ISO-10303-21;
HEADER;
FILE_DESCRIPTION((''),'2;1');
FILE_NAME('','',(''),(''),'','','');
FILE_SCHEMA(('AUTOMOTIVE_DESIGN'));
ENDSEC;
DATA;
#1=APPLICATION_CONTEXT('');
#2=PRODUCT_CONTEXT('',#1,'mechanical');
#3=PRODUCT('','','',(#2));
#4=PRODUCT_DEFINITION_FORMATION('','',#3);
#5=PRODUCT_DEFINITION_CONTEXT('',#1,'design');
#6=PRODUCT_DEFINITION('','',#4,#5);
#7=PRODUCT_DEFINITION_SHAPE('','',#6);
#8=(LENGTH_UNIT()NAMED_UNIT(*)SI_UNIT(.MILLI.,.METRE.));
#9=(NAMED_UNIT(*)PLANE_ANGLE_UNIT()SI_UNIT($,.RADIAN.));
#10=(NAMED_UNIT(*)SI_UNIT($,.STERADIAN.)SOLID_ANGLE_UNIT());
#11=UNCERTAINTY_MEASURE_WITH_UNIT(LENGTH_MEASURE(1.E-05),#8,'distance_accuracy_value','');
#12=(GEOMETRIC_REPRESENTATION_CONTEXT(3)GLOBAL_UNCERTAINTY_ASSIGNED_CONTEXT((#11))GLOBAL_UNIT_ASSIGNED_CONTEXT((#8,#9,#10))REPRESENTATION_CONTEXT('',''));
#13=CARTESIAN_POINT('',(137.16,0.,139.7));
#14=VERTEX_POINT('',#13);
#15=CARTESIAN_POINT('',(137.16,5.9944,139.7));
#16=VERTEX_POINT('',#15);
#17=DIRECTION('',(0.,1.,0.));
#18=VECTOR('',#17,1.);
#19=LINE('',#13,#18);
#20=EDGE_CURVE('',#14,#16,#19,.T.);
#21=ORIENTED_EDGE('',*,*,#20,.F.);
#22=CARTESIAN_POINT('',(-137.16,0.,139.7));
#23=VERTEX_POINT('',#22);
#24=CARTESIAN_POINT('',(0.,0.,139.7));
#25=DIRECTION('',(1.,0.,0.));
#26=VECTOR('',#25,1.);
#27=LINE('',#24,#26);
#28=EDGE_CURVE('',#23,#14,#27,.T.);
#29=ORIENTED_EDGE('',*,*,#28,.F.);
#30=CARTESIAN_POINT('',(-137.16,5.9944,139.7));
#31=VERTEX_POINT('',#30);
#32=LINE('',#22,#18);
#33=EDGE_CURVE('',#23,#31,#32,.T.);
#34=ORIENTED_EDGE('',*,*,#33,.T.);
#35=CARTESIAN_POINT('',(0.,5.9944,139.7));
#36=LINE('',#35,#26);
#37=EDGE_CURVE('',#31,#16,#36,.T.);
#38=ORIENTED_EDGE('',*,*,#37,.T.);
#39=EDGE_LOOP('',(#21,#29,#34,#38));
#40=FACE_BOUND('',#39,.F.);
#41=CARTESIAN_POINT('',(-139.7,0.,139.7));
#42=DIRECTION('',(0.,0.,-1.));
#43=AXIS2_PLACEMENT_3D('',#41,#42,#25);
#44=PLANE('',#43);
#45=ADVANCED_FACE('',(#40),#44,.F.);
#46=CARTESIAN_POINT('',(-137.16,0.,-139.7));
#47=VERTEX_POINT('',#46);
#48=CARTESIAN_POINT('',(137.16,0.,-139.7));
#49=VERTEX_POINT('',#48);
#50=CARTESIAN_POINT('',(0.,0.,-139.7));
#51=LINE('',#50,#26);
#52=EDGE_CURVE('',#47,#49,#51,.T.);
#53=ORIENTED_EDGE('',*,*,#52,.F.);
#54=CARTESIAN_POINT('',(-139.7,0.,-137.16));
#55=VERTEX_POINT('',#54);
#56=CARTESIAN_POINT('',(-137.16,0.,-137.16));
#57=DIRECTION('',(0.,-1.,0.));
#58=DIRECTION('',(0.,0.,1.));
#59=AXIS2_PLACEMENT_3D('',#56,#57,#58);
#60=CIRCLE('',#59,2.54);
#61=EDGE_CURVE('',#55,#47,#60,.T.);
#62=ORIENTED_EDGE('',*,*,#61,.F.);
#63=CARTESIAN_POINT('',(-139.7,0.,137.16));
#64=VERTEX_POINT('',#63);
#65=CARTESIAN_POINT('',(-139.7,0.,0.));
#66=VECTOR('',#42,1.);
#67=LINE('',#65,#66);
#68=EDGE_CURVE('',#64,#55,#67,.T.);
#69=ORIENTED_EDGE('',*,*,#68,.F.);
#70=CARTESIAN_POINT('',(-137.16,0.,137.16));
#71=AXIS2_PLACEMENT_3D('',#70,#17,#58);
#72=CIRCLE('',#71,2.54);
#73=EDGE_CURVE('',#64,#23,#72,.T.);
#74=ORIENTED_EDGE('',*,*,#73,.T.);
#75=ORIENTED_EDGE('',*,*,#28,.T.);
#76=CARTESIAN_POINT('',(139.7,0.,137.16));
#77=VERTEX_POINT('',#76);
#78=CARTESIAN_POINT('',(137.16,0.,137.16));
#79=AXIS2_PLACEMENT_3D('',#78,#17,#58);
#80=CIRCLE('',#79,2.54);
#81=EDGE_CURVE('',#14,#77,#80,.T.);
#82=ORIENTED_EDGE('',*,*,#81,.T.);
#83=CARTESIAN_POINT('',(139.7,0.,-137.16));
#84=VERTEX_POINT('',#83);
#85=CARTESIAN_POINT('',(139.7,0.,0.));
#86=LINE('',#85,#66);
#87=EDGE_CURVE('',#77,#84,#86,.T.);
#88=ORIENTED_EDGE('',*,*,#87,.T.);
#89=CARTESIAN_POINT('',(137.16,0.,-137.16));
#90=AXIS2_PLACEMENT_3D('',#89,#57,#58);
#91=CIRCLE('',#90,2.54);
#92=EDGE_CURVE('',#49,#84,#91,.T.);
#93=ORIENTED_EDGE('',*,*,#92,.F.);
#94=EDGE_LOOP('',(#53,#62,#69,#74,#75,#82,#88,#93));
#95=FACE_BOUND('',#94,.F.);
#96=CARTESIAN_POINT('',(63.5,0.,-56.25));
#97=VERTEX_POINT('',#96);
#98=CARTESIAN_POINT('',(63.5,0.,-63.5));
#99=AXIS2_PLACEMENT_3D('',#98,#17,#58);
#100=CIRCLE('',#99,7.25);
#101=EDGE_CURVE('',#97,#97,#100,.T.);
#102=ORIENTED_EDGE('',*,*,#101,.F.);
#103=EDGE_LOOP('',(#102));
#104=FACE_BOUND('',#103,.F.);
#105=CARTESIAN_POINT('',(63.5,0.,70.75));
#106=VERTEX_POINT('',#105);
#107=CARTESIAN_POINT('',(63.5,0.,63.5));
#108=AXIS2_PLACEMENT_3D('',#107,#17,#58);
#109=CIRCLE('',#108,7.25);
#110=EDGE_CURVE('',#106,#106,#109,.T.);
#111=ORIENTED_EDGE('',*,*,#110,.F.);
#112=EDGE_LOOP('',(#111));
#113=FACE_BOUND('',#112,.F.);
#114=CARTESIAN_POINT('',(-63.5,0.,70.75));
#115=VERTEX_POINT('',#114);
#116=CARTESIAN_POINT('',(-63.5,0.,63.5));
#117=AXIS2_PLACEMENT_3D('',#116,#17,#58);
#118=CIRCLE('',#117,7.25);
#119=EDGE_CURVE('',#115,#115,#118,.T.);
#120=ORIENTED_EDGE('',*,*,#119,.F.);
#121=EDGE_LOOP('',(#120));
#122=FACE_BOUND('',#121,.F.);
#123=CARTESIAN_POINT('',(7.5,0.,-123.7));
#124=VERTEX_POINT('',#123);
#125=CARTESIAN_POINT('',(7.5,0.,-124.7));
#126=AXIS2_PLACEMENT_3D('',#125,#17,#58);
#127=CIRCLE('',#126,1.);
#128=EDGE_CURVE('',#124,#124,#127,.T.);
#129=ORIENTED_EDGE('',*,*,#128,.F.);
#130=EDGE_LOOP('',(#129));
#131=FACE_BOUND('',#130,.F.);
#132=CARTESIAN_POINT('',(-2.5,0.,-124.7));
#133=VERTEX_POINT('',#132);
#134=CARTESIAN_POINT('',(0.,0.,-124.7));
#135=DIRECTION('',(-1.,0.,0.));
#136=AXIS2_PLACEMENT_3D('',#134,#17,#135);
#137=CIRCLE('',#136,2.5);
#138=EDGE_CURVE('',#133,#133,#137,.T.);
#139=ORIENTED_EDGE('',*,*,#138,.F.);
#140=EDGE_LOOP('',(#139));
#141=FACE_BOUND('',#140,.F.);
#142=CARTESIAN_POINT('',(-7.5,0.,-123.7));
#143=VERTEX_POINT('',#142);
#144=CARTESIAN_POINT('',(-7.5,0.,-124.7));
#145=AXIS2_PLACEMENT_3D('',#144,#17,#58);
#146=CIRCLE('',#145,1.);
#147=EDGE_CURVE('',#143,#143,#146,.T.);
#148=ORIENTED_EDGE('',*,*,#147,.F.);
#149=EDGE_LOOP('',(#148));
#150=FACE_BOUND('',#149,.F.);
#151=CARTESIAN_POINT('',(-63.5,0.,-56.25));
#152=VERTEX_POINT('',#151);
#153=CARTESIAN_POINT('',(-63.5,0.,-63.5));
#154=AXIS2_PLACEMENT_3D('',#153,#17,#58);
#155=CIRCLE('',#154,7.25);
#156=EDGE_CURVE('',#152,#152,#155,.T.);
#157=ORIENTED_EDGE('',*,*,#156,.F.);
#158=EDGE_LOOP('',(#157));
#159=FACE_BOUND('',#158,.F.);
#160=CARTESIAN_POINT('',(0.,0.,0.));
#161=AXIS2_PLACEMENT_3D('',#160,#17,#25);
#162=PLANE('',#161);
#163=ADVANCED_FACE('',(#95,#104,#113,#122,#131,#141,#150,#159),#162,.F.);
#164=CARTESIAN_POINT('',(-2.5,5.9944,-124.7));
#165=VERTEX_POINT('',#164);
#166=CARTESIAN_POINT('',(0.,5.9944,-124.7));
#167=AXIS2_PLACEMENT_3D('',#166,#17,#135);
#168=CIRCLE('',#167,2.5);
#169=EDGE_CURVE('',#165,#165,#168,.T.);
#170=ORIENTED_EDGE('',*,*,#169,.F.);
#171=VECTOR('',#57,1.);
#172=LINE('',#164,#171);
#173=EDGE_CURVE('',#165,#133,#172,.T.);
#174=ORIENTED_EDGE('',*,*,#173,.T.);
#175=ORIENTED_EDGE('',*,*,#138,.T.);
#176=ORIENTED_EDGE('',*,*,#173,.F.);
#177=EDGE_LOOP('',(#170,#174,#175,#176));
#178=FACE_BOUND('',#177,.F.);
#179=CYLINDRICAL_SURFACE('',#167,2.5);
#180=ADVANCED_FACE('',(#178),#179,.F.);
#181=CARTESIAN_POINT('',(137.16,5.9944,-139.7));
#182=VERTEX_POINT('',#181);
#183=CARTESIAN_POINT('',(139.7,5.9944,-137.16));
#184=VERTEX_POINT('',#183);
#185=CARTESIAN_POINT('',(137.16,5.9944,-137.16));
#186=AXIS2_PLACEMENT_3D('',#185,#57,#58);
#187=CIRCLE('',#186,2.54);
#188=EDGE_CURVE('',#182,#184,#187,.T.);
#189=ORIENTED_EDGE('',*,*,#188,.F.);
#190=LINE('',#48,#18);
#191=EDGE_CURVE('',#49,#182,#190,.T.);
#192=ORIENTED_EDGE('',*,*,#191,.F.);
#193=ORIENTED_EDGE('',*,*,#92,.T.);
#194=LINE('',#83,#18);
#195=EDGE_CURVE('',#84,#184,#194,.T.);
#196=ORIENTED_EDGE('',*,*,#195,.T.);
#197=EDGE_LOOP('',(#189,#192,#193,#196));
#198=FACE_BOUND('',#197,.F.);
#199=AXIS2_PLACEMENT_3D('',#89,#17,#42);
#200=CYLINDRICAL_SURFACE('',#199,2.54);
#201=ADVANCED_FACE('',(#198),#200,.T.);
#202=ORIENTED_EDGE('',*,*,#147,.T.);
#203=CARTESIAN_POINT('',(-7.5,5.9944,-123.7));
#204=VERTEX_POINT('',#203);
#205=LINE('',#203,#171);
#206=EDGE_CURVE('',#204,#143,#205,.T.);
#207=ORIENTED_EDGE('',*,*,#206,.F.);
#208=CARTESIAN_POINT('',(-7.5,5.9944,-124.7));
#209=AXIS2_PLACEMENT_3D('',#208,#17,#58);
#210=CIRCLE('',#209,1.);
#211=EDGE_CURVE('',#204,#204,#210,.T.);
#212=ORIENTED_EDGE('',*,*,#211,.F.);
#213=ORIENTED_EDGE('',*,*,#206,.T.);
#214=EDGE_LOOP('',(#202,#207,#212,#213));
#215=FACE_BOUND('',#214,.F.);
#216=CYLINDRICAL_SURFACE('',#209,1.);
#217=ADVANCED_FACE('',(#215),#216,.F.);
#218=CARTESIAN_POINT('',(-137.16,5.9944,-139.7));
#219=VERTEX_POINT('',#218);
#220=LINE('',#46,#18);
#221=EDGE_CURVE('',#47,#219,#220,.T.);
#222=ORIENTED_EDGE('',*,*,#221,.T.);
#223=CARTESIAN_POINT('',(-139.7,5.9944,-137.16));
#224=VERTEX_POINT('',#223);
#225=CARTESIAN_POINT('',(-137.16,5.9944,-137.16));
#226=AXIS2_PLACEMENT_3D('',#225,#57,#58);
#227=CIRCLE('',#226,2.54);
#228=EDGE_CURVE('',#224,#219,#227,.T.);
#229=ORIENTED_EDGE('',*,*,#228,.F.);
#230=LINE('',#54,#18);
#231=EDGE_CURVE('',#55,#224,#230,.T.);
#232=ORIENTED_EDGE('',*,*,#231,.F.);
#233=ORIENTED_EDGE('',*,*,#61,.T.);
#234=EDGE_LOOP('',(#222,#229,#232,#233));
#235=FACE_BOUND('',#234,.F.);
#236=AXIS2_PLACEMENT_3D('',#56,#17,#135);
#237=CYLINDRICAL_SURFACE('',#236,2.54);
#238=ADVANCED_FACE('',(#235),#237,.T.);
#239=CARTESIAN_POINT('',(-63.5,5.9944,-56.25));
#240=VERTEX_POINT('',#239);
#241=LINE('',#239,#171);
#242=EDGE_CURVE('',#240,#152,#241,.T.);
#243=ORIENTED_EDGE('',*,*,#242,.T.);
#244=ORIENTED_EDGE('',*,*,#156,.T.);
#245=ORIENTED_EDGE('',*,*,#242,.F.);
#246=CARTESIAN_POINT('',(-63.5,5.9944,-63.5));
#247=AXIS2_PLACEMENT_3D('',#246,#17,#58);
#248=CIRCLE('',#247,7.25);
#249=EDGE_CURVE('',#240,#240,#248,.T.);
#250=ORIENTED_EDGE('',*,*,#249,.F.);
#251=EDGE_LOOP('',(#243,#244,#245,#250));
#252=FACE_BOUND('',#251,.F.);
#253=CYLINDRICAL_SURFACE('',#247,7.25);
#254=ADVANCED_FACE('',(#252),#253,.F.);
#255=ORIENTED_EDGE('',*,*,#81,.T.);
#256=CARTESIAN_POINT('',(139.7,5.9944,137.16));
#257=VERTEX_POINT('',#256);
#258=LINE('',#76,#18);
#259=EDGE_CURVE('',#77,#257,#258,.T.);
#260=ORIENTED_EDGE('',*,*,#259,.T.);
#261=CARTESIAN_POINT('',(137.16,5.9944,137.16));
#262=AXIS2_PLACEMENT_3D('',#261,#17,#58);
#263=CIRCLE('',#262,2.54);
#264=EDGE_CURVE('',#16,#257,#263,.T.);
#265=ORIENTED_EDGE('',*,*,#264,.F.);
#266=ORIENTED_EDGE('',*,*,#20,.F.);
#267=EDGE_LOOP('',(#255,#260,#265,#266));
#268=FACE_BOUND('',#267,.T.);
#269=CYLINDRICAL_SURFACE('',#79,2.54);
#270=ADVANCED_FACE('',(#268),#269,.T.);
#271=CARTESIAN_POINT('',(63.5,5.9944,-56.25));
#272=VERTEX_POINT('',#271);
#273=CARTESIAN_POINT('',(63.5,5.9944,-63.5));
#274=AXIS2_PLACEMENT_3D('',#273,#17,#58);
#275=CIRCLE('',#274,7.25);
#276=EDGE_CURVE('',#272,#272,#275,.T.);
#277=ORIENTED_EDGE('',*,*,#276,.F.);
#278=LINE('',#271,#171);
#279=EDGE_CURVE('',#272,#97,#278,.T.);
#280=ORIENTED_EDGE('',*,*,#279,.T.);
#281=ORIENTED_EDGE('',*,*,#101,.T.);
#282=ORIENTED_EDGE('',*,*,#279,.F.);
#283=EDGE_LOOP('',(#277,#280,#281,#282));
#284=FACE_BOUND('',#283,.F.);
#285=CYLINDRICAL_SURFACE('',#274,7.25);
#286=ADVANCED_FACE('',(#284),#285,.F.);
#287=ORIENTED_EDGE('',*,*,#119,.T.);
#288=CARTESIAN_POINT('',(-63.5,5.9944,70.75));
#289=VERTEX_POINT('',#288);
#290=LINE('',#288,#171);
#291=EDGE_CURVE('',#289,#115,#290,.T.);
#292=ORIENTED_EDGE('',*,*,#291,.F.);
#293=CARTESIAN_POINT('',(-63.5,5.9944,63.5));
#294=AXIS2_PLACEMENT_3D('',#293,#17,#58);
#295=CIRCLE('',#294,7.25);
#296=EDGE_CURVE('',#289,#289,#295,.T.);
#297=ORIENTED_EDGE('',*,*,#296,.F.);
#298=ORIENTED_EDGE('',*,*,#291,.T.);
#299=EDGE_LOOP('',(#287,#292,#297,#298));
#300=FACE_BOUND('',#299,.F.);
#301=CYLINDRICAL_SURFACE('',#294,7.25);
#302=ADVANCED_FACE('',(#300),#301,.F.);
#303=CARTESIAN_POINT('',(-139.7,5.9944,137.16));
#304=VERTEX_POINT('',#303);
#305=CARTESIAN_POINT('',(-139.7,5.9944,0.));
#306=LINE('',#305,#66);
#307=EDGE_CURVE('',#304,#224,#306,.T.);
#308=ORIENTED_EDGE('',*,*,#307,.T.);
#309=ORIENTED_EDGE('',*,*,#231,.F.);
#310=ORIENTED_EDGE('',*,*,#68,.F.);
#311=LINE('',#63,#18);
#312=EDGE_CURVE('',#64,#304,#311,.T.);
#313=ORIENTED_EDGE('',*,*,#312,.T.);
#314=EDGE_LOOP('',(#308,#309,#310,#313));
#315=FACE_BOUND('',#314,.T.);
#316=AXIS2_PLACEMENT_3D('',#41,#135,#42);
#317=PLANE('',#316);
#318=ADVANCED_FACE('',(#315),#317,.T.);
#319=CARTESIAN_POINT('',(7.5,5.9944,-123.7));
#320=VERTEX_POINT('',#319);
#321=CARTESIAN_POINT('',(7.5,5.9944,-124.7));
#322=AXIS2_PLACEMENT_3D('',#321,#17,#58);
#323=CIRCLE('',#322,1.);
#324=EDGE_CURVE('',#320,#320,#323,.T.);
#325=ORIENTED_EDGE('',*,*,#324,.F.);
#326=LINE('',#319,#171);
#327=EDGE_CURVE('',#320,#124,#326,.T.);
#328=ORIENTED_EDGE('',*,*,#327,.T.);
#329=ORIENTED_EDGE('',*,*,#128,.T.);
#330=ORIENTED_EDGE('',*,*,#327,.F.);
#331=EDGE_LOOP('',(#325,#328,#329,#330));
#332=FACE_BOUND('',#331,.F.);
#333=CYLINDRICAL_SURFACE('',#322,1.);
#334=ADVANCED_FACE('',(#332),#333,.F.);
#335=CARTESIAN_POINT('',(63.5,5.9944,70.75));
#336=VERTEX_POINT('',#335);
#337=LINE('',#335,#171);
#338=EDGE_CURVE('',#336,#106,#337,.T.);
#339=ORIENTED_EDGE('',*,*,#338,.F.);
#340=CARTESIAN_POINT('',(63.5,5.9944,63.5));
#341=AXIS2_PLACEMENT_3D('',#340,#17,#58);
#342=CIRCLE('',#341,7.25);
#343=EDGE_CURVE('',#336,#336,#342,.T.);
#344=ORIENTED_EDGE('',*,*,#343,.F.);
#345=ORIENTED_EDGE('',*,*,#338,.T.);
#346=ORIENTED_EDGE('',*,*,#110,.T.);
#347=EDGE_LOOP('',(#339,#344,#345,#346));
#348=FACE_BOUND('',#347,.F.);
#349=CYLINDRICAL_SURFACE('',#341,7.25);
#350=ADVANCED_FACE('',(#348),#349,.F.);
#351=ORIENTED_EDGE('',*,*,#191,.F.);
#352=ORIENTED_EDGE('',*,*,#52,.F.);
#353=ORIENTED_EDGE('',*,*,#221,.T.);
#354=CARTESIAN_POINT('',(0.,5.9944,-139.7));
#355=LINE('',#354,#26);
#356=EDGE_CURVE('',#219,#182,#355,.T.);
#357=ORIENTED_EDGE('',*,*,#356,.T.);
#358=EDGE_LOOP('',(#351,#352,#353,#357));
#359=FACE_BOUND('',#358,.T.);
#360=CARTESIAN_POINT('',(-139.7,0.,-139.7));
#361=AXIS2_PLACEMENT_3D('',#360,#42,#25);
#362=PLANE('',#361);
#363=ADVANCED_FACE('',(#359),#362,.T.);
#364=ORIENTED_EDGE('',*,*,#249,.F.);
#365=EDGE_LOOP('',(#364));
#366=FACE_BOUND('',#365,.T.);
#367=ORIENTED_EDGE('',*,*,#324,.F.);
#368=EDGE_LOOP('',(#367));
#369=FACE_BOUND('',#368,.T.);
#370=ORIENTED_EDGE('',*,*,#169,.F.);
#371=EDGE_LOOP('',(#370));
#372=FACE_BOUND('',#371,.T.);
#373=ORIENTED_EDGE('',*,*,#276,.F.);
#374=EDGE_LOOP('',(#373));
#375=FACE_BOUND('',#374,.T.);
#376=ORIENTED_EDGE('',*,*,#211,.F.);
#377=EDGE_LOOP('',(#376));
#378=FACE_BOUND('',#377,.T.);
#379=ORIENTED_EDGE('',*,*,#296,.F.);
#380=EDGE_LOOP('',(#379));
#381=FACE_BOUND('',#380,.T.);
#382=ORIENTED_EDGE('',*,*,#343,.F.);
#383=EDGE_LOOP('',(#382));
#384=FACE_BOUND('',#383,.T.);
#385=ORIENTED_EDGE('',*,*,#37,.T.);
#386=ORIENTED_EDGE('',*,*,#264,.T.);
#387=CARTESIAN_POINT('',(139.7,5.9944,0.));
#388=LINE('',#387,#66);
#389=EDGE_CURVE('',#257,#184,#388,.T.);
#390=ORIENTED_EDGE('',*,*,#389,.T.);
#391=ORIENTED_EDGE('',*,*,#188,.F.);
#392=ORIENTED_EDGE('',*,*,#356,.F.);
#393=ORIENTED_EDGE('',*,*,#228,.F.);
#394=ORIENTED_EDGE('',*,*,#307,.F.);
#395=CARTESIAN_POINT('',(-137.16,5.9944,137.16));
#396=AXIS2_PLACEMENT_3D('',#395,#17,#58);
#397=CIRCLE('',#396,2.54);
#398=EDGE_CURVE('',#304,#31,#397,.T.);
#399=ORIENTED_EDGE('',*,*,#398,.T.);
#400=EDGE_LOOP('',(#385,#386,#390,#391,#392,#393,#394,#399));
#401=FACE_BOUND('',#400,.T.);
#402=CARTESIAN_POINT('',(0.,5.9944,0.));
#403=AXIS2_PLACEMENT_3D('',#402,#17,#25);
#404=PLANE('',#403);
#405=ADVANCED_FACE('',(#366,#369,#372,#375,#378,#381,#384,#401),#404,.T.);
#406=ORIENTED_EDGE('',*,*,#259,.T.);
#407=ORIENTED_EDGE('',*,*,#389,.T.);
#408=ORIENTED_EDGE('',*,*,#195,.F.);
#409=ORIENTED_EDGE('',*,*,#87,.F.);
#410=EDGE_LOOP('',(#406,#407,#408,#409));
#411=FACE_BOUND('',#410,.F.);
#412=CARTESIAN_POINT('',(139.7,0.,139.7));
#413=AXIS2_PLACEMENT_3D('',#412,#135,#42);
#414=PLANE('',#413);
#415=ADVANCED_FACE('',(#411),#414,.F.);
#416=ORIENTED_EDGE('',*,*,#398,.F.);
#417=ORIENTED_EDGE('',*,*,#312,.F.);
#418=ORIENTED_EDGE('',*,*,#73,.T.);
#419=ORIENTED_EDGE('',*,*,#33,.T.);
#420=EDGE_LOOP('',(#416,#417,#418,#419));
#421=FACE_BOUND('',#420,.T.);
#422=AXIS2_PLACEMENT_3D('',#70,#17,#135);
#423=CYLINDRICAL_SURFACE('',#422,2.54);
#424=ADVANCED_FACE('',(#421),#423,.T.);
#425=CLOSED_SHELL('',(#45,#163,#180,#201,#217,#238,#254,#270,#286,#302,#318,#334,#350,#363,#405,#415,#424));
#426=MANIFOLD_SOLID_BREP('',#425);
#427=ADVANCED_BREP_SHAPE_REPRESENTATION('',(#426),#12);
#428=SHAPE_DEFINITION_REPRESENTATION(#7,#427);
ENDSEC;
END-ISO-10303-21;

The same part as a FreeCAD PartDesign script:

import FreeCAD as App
import Part
import Sketcher
from FreeCAD import Vector
Q = App.Units.Quantity


def edges_at(feature, points):
    """Names of the edges that pass closest to the given points."""
    edges = feature.Shape.Edges
    near = lambda p: min(range(len(edges)), key=lambda i: edges[i].distToShape(Part.Vertex(*p))[0])
    return sorted({f"Edge{near(p) + 1}" for p in points})


def add_polygon(sketch, points):
    """Adds a closed chain of lines whose ends are joined by coincident constraints."""
    first, n = sketch.GeometryCount, len(points)
    for a, b in zip(points, points[1:] + points[:1]):
        sketch.addGeometry(Part.LineSegment(App.Vector(*a, 0), App.Vector(*b, 0)), False)
    for i in range(n):
        sketch.addConstraint(Sketcher.Constraint("Coincident", first + i, 2, first + (i + 1) % n, 1))

doc = App.newDocument("Part")
body = doc.addObject("PartDesign::Body", "Body")

# Sketch on XZ plane
sketch1 = body.newObject("Sketcher::SketchObject", "Sketch")
sketch1.AttachmentSupport = (doc.getObject("XZ_Plane"), [""])
sketch1.MapMode = "FlatFace"
add_polygon(sketch1, [(-139.7, -139.7), (-139.7, 139.7), (139.7, 139.7), (139.7, -139.7)])  # lines 0-3
sketch1.addConstraint([
    Sketcher.Constraint("Vertical", 0),
    Sketcher.Constraint("Horizontal", 1),
    Sketcher.Constraint("Vertical", 2),
    Sketcher.Constraint("Horizontal", 3),
    Sketcher.Constraint("Symmetric", 0, 2, 2, 2, -1, 1),
    Sketcher.Constraint("Equal", 3, 0),
    Sketcher.Constraint("DistanceX", 1, 1, 1, 2, Q("279.4 mm")),
])
pad1 = body.newObject("PartDesign::Pad", "Pad")
pad1.Profile = sketch1
pad1.Length = 5.9944
pad1.Reversed = True

# Sketch on XZ plane
sketch2 = body.newObject("Sketcher::SketchObject", "Sketch001")
sketch2.AttachmentSupport = (doc.getObject("XZ_Plane"), [""])
sketch2.MapMode = "FlatFace"
sketch2.AttachmentOffset = App.Placement(Vector(0, 0, -5.9944), App.Rotation())
sketch2.addGeometry([
    Part.Circle(Vector(-63.5, -63.5, 0), Vector(0, 0, 1), 7.25),
    Part.Circle(Vector(63.5, -63.5, 0), Vector(0, 0, 1), 7.25),
    Part.Circle(Vector(63.5, 63.5, 0), Vector(0, 0, 1), 7.25),
    Part.Circle(Vector(-63.5, 63.5, 0), Vector(0, 0, 1), 7.25),
], False)
sketch2.addConstraint([
    Sketcher.Constraint("Equal", 0, 1),
    Sketcher.Constraint("Equal", 1, 2),
    Sketcher.Constraint("Equal", 2, 3),
    Sketcher.Constraint("Symmetric", 0, 3, 2, 3, -1, 1),
    Sketcher.Constraint("Symmetric", 1, 3, 3, 3, -1, 1),
    Sketcher.Constraint("Symmetric", 0, 3, 1, 3, -2),
    Sketcher.Constraint("Diameter", 0, Q("14.5 mm")),
    Sketcher.Constraint("DistanceX", 0, 3, 1, 3, Q("127 mm")),
    Sketcher.Constraint("DistanceY", 1, 3, 2, 3, Q("127 mm")),
])
pocket1 = body.newObject("PartDesign::Pocket", "Pocket")
pocket1.Profile = sketch2
pocket1.Type = "ThroughAll"
pocket1.Reversed = True
doc.recompute()

fillet = body.newObject("PartDesign::Fillet", "Fillet")
fillet.Base = (pocket1, edges_at(pocket1, [
    (139.7, 2.997, 139.7),
    (-139.7, 2.997, 139.7),
    (-139.7, 2.997, -139.7),
    (139.7, 2.997, -139.7),
]))
fillet.Radius = 2.54

# Sketch on XZ plane
sketch3 = body.newObject("Sketcher::SketchObject", "Sketch002")
sketch3.AttachmentSupport = (doc.getObject("XZ_Plane"), [""])
sketch3.MapMode = "FlatFace"
sketch3.AttachmentOffset = App.Placement(Vector(0, 0, -5.9944), App.Rotation())
sketch3.addGeometry([
    Part.Circle(Vector(0, -124.7, 0), Vector(0, 0, 1), 2.5),
    Part.Circle(Vector(7.5, -124.7, 0), Vector(0, 0, 1), 1),
    Part.Circle(Vector(-7.5, -124.7, 0), Vector(0, 0, 1), 1),
], False)
sketch3.addConstraint([
    Sketcher.Constraint("Equal", 1, 2),
    Sketcher.Constraint("Symmetric", 1, 3, 2, 3, -2),
    Sketcher.Constraint("PointOnObject", 0, 3, -2),
    Sketcher.Constraint("Horizontal", 0, 3, 1, 3),
    Sketcher.Constraint("Diameter", 0, Q("5 mm")),
    Sketcher.Constraint("Diameter", 1, Q("2 mm")),
    Sketcher.Constraint("DistanceX", 2, 3, 1, 3, Q("15 mm")),
    Sketcher.Constraint("DistanceY", 0, 3, -1, 1, Q("124.7 mm")),
])
pocket2 = body.newObject("PartDesign::Pocket", "Pocket001")
pocket2.Profile = sketch3
pocket2.Type = "ThroughAll"
pocket2.Reversed = True

doc.recompute()
